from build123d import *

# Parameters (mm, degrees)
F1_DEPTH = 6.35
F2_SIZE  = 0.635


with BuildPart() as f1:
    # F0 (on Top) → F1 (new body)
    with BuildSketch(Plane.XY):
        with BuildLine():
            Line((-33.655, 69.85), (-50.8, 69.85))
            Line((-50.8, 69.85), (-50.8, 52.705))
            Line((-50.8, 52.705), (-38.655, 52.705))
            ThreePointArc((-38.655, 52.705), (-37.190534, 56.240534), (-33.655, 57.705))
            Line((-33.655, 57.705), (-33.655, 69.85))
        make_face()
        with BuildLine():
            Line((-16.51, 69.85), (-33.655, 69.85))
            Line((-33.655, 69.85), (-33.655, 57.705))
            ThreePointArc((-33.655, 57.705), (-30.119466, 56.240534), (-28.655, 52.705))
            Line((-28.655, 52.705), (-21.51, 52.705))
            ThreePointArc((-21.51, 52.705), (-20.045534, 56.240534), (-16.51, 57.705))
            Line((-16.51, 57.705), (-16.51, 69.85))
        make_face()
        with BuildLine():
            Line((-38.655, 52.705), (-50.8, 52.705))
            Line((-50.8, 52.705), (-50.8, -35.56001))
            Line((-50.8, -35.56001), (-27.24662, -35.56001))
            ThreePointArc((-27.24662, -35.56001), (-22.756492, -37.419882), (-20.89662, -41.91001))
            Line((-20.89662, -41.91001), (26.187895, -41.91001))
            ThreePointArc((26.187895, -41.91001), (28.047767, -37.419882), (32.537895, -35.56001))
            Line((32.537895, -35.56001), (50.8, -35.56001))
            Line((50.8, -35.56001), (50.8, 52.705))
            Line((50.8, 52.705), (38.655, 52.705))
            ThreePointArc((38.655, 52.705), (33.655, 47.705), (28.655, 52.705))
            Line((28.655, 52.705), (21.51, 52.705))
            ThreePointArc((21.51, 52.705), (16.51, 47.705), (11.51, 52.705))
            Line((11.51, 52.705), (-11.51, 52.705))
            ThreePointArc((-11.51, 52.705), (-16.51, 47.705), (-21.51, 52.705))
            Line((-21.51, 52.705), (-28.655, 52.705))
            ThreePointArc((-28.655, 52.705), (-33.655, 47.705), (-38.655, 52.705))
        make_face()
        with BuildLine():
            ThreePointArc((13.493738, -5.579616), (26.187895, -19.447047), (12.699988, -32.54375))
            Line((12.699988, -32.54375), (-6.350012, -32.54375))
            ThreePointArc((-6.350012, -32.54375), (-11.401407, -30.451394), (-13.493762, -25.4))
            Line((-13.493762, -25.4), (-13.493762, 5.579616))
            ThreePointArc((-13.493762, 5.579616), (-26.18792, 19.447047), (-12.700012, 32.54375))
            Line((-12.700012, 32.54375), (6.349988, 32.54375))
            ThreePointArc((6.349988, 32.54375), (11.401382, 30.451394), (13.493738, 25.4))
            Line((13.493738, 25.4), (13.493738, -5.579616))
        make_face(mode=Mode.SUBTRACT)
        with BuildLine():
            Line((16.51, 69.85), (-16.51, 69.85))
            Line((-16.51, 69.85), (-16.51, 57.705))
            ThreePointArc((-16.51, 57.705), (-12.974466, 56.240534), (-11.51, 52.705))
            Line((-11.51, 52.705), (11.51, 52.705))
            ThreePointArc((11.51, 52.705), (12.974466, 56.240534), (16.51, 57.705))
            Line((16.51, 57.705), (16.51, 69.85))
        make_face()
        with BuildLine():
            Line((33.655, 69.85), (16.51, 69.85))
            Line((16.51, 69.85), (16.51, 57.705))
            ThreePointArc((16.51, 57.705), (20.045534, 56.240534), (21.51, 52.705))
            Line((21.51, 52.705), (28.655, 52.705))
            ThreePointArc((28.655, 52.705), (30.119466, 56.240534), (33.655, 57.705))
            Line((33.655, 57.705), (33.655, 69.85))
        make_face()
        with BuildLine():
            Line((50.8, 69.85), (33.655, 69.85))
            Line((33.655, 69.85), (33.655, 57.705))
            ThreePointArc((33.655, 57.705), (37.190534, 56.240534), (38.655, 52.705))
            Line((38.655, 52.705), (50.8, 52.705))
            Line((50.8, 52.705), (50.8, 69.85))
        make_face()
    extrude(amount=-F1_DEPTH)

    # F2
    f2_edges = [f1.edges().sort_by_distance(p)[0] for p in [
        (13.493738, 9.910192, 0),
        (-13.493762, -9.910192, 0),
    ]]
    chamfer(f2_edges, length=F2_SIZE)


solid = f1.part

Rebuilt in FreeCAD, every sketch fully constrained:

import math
import FreeCAD as App
import Part
import Sketcher
from FreeCAD import Vector
Q = App.Units.Quantity


def edges_at(feature, points):
    """Names of the edges that pass closest to the given points."""
    edges = feature.Shape.Edges
    near = lambda p: min(range(len(edges)), key=lambda i: edges[i].distToShape(Part.Vertex(*p))[0])
    return sorted({f"Edge{near(p) + 1}" for p in points})

doc = App.newDocument("Part")
params = doc.addObject("Spreadsheet::Sheet", "Params")
for row, (alias, value) in enumerate([
    ("sketch1_width", "4 in"),
    ("sketch1_radius", "0.25 in"),
    ("sketch1_radius2", "0.53125 in"),
    ("sketch1_radius3", "0.2812499 in"),
    ("sketch1_width2", "0.75 in"),
    ("pad1_length", "0.25 in"),
    ("chamfer_size", "0.025 in"),
], start=1):
    params.set(f"A{row}", alias)
    params.set(f"B{row}", "=" + value)
    params.setAlias(f"B{row}", alias)

body = doc.addObject("PartDesign::Body", "Body")

sketch1 = body.newObject("Sketcher::SketchObject", "Sketch")
sketch1.AttachmentSupport = (doc.getObject("XY_Plane"), [""])
sketch1.MapMode = "FlatFace"
sketch1.addGeometry([
    Part.LineSegment(Vector(-50.8, 69.8, 0), Vector(-50.8, -35.6, 0)),
    Part.LineSegment(Vector(-50.8, -35.6, 0), Vector(-27.2, -35.6, 0)),
    Part.ArcOfCircle(Part.Circle(Vector(-27.2, -41.9, 0), Vector(0, 0, 1), 6.4), math.radians(0), math.radians(90)),
    Part.LineSegment(Vector(-20.9, -41.9, 0), Vector(26.2, -41.9, 0)),
    Part.ArcOfCircle(Part.Circle(Vector(32.5, -41.9, 0), Vector(0, 0, 1), 6.4), math.radians(90), math.radians(180)),
    Part.LineSegment(Vector(32.5, -35.6, 0), Vector(50.8, -35.6, 0)),
    Part.LineSegment(Vector(50.8, -35.6, 0), Vector(50.8, 69.8, 0)),
    Part.LineSegment(Vector(50.8, 69.8, 0), Vector(-50.8, 69.8, 0)),
    Part.ArcOfCircle(Part.Circle(Vector(33.7, 52.7, 0), Vector(0, 0, 1), 5), math.radians(180), math.radians(360)),
    Part.ArcOfCircle(Part.Circle(Vector(33.7, 52.7, 0), Vector(0, 0, 1), 5), math.radians(90), math.radians(180)),
    Part.ArcOfCircle(Part.Circle(Vector(33.7, 52.7, 0), Vector(0, 0, 1), 5), math.radians(0), math.radians(90)),
    Part.ArcOfCircle(Part.Circle(Vector(16.5, 52.7, 0), Vector(0, 0, 1), 5), math.radians(180), math.radians(360)),
    Part.ArcOfCircle(Part.Circle(Vector(16.5, 52.7, 0), Vector(0, 0, 1), 5), math.radians(90), math.radians(180)),
    Part.ArcOfCircle(Part.Circle(Vector(16.5, 52.7, 0), Vector(0, 0, 1), 5), math.radians(0), math.radians(90)),
    Part.ArcOfCircle(Part.Circle(Vector(-16.5, 52.7, 0), Vector(0, 0, 1), 5), math.radians(90), math.radians(180)),
    Part.ArcOfCircle(Part.Circle(Vector(-16.5, 52.7, 0), Vector(0, 0, 1), 5), math.radians(0), math.radians(90)),
    Part.ArcOfCircle(Part.Circle(Vector(-16.5, 52.7, 0), Vector(0, 0, 1), 5), math.radians(180), math.radians(360)),
    Part.LineSegment(Vector(13.5, 25.4, 0), Vector(13.5, -5.6, 0)),
    Part.ArcOfCircle(Part.Circle(Vector(12.7, -19.1, 0), Vector(0, 0, 1), 13.5), math.radians(-90), math.radians(87)),
    Part.LineSegment(Vector(12.7, -32.5, 0), Vector(-6.4, -32.5, 0)),
    Part.ArcOfCircle(Part.Circle(Vector(-6.4, -25.4, 0), Vector(0, 0, 1), 7.1), math.radians(180), math.radians(270)),
    Part.LineSegment(Vector(-13.5, -25.4, 0), Vector(-13.5, 5.6, 0)),
    Part.ArcOfCircle(Part.Circle(Vector(-12.7, 19.1, 0), Vector(0, 0, 1), 13.5), math.radians(90), math.radians(267)),
    Part.LineSegment(Vector(-12.7, 32.5, 0), Vector(6.3, 32.5, 0)),
    Part.ArcOfCircle(Part.Circle(Vector(6.3, 25.4, 0), Vector(0, 0, 1), 7.1), math.radians(0), math.radians(90)),
    Part.ArcOfCircle(Part.Circle(Vector(-33.7, 52.7, 0), Vector(0, 0, 1), 5), math.radians(90), math.radians(180)),
    Part.ArcOfCircle(Part.Circle(Vector(-33.7, 52.7, 0), Vector(0, 0, 1), 5), math.radians(0), math.radians(90)),
    Part.ArcOfCircle(Part.Circle(Vector(-33.7, 52.7, 0), Vector(0, 0, 1), 5), math.radians(180), math.radians(360)),
], False)
sketch1.addConstraint([
    Sketcher.Constraint("Coincident", 0, 2, 1, 1),
    Sketcher.Constraint("Tangent", 1, 2, 2, 2),
    Sketcher.Constraint("Coincident", 2, 1, 3, 1),
    Sketcher.Constraint("Coincident", 3, 2, 4, 2),
    Sketcher.Constraint("Tangent", 4, 1, 5, 1),
    Sketcher.Constraint("Coincident", 5, 2, 6, 1),
    Sketcher.Constraint("Coincident", 6, 2, 7, 1),
    Sketcher.Constraint("Coincident", 7, 2, 0, 1),
    Sketcher.Constraint("Tangent", 8, 1, 9, 2),
    Sketcher.Constraint("Tangent", 9, 1, 10, 2),
    Sketcher.Constraint("Tangent", 10, 1, 8, 2),
    Sketcher.Constraint("Tangent", 11, 1, 12, 2),
    Sketcher.Constraint("Tangent", 12, 1, 13, 2),
    Sketcher.Constraint("Tangent", 13, 1, 11, 2),
    Sketcher.Constraint("Tangent", 14, 1, 15, 2),
    Sketcher.Constraint("Tangent", 15, 1, 16, 2),
    Sketcher.Constraint("Tangent", 16, 1, 14, 2),
    Sketcher.Constraint("Coincident", 17, 2, 18, 2),
    Sketcher.Constraint("Tangent", 18, 1, 19, 1),
    Sketcher.Constraint("Tangent", 19, 2, 20, 2),
    Sketcher.Constraint("Tangent", 20, 1, 21, 1),
    Sketcher.Constraint("Coincident", 21, 2, 22, 2),
    Sketcher.Constraint("Tangent", 22, 1, 23, 1),
    Sketcher.Constraint("Tangent", 23, 2, 24, 2),
    Sketcher.Constraint("Tangent", 24, 1, 17, 1),
    Sketcher.Constraint("Tangent", 25, 1, 26, 2),
    Sketcher.Constraint("Tangent", 26, 1, 27, 2),
    Sketcher.Constraint("Tangent", 27, 1, 25, 2),
    Sketcher.Constraint("Vertical", 0),
    Sketcher.Constraint("Horizontal", 1),
    Sketcher.Constraint("Horizontal", 3),
    Sketcher.Constraint("Horizontal", 5),
    Sketcher.Constraint("Vertical", 6),
    Sketcher.Constraint("Horizontal", 7),
    Sketcher.Constraint("Vertical", 17),
    Sketcher.Constraint("Horizontal", 19),
    Sketcher.Constraint("Vertical", 21),
    Sketcher.Constraint("Horizontal", 23),
    Sketcher.Constraint("Equal", 2, 4),
    Sketcher.Constraint("Equal", 10, 11),
    Sketcher.Constraint("Equal", 13, 14),
    Sketcher.Constraint("Equal", 18, 22),
    Sketcher.Constraint("Equal", 20, 24),
    Sketcher.Constraint("Equal", 16, 25),
    Sketcher.Constraint("Symmetric", 11, 3, 14, 3, -2),
    Sketcher.Constraint("Symmetric", 8, 3, 25, 3, -2),
    Sketcher.Constraint("Symmetric", 0, 2, 5, 2, -2),
    Sketcher.Constraint("Horizontal", 10, 3, 11, 3),
    Sketcher.Constraint("Horizontal", 4, 3, 2, 1),
    Sketcher.Constraint("Horizontal", 27, 3, 8, 1),
    Sketcher.Constraint("Horizontal", 8, 1, 10, 1),
    Sketcher.Constraint("Horizontal", 10, 1, 11, 1),
    Sketcher.Constraint("Horizontal", 11, 1, 13, 1),
    Sketcher.Constraint("Horizontal", 13, 1, 15, 1),
    Sketcher.Constraint("Horizontal", 15, 1, 16, 1),
    Sketcher.Constraint("Horizontal", 16, 1, 26, 1),
    Sketcher.Constraint("Horizontal", 26, 1, 27, 1),
    Sketcher.Constraint("Vertical", 10, 3, 9, 1),
    Sketcher.Constraint("Vertical", 13, 3, 12, 1),
    Sketcher.Constraint("Vertical", 16, 3, 14, 1),
    Sketcher.Constraint("Vertical", 27, 3, 25, 1),
    Sketcher.Constraint("Equal", 19, 23),
    Sketcher.Constraint("DistanceX", 7, 2, 7, 1, Q("4 in")),
    Sketcher.Constraint("Radius", 2, Q("0.25 in")),
    Sketcher.Constraint("DistanceY", 20, 3, -1, 1, Q("1.0000001 in")),
    Sketcher.Constraint("DistanceY", -1, 1, 24, 3, Q("1 in")),
    Sketcher.Constraint("Radius", 18, Q("0.53125 in")),
    Sketcher.Constraint("Radius", 20, Q("0.2812499 in")),
    Sketcher.Constraint("DistanceX", 19, 2, 19, 1, Q("0.75 in")),
    Sketcher.Constraint("DistanceX", 14, 3, 12, 3, Q("1.3 in")),
    Sketcher.Constraint("DistanceY", -1, 1, 6, 2, Q("2.75 in")),
    Sketcher.Constraint("Radius", 8, 5.0),
    Sketcher.Constraint("DistanceX", -1, 1, 8, 3, Q("1.325 in")),
    Sketcher.Constraint("DistanceY", -1, 1, 8, 3, Q("2.075 in")),
    Sketcher.Constraint("DistanceX", 18, 3, 17, 2, Q("0.03125 in")),
    Sketcher.Constraint("DistanceX", 11, 1, 24, 1, Q("0.0780999 in")),
    Sketcher.Constraint("DistanceX", 1, 1, 1, 2, 23.55338),
    Sketcher.Constraint("DistanceY", 0, 2, 0, 1, 105.41001),
    Sketcher.Constraint("DistanceX", 3, 1, 3, 2, 47.084515),
])
sketch1.setExpression("Constraints[62]", "Params.sketch1_width")
sketch1.setExpression("Constraints[63]", "Params.sketch1_radius")
sketch1.setExpression("Constraints[66]", "Params.sketch1_radius2")
sketch1.setExpression("Constraints[67]", "Params.sketch1_radius3")
sketch1.setExpression("Constraints[68]", "Params.sketch1_width2")
pad1 = body.newObject("PartDesign::Pad", "Pad")
pad1.Profile = sketch1
pad1.setExpression("Length", "Params.pad1_length")
pad1.Reversed = True
doc.recompute()

chamfer = body.newObject("PartDesign::Chamfer", "Chamfer")
chamfer.Base = (pad1, edges_at(pad1, [(13.494, 9.91, 0), (-13.494, -9.91, 0)]))
chamfer.setExpression("Size", "Params.chamfer_size")

doc.recompute()
